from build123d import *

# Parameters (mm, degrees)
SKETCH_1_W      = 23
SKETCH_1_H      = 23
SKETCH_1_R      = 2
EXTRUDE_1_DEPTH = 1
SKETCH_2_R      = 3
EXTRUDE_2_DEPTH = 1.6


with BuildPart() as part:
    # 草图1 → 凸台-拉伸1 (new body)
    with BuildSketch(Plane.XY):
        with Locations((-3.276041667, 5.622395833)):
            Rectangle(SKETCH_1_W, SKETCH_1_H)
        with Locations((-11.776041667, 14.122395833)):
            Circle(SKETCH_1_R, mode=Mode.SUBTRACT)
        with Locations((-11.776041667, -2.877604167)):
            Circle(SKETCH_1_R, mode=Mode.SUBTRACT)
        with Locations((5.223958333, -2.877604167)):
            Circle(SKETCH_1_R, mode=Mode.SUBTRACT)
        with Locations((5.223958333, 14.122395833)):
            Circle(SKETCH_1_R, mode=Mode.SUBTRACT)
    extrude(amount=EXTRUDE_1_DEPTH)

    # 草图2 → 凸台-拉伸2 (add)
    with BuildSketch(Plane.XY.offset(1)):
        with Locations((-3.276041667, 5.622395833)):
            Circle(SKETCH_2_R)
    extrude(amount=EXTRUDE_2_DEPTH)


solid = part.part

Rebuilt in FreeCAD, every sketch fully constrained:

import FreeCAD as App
import Part
import Sketcher
from FreeCAD import Vector
Q = App.Units.Quantity

doc = App.newDocument("Part")
body = doc.addObject("PartDesign::Body", "Body")

# Sketch on XY plane
sketch1 = doc.addObject("Sketcher::SketchObject", "Sketch")
body.addObject(sketch1)
sketch1.AttachmentSupport = (doc.XY_Plane, [""])
sketch1.MapMode = "FlatFace"
sketch1.addGeometry(Part.LineSegment(Vector(-14.776042, 17.122396, 0), Vector(-14.776042, -5.877604, 0)), False)
sketch1.addGeometry(Part.LineSegment(Vector(-14.776042, -5.877604, 0), Vector(8.223958, -5.877604, 0)), False)
sketch1.addGeometry(Part.LineSegment(Vector(8.223958, -5.877604, 0), Vector(8.223958, 17.122396, 0)), False)
sketch1.addGeometry(Part.LineSegment(Vector(8.223958, 17.122396, 0), Vector(-14.776042, 17.122396, 0)), False)
sketch1.addGeometry(Part.Circle(Vector(-11.776042, -2.877604, 0), Vector(0, 0, 1), 2), False)
sketch1.addGeometry(Part.Circle(Vector(5.223958, -2.877604, 0), Vector(0, 0, 1), 2), False)
sketch1.addGeometry(Part.Circle(Vector(-11.776042, 14.122396, 0), Vector(0, 0, 1), 2), False)
sketch1.addGeometry(Part.Circle(Vector(5.223958, 14.122396, 0), Vector(0, 0, 1), 2), False)
sketch1.addConstraint(Sketcher.Constraint("Coincident", 0, 2, 1, 1))
sketch1.addConstraint(Sketcher.Constraint("Coincident", 1, 2, 2, 1))
sketch1.addConstraint(Sketcher.Constraint("Coincident", 2, 2, 3, 1))
sketch1.addConstraint(Sketcher.Constraint("Coincident", 3, 2, 0, 1))
sketch1.addConstraint(Sketcher.Constraint("Vertical", 0))
sketch1.addConstraint(Sketcher.Constraint("Horizontal", 1))
sketch1.addConstraint(Sketcher.Constraint("Vertical", 2))
sketch1.addConstraint(Sketcher.Constraint("Horizontal", 3))
sketch1.addConstraint(Sketcher.Constraint("Equal", 4, 5))
sketch1.addConstraint(Sketcher.Constraint("Equal", 5, 6))
sketch1.addConstraint(Sketcher.Constraint("Equal", 6, 7))
sketch1.addConstraint(Sketcher.Constraint("Horizontal", 4, 3, 5, 3))
sketch1.addConstraint(Sketcher.Constraint("Horizontal", 6, 3, 7, 3))
sketch1.addConstraint(Sketcher.Constraint("Vertical", 4, 3, 6, 3))
sketch1.addConstraint(Sketcher.Constraint("Vertical", 5, 3, 7, 3))
sketch1.addConstraint(Sketcher.Constraint("Equal", 3, 0))
sketch1.addConstraint(Sketcher.Constraint("Diameter", 4, Q("4 mm")))
sketch1.addConstraint(Sketcher.Constraint("DistanceX", 1, 1, 1, 2, Q("23 mm")))
sketch1.addConstraint(Sketcher.Constraint("DistanceX", 4, 3, 5, 3, Q("17 mm")))
sketch1.addConstraint(Sketcher.Constraint("DistanceY", 4, 3, 6, 3, Q("17 mm")))
sketch1.addConstraint(Sketcher.Constraint("DistanceX", 0, 2, 4, 3, Q("3 mm")))
sketch1.addConstraint(Sketcher.Constraint("DistanceY", 0, 2, 4, 3, Q("3 mm")))
sketch1.addConstraint(Sketcher.Constraint("DistanceX", 4, 3, -1, 1, Q("11.776042 mm")))
sketch1.addConstraint(Sketcher.Constraint("DistanceY", 4, 3, -1, 1, Q("2.877604 mm")))
pad1 = doc.addObject("PartDesign::Pad", "Pad")
body.addObject(pad1)
pad1.Profile = sketch1
pad1.Length = 1

# Sketch on XY plane
sketch2 = doc.addObject("Sketcher::SketchObject", "Sketch001")
body.addObject(sketch2)
sketch2.AttachmentSupport = (doc.XY_Plane, [""])
sketch2.MapMode = "FlatFace"
sketch2.AttachmentOffset = App.Placement(Vector(0, 0, 1), App.Rotation())
sketch2.addGeometry(Part.Circle(Vector(-3.276042, 5.622396, 0), Vector(0, 0, 1), 3), False)
sketch2.addConstraint(Sketcher.Constraint("Diameter", 0, Q("6 mm")))
sketch2.addConstraint(Sketcher.Constraint("DistanceX", 0, 3, -1, 1, Q("3.276042 mm")))
sketch2.addConstraint(Sketcher.Constraint("DistanceY", -1, 1, 0, 3, Q("5.622396 mm")))
pad2 = doc.addObject("PartDesign::Pad", "Pad001")
body.addObject(pad2)
pad2.Profile = sketch2
pad2.Length = 1.6

doc.recompute()
